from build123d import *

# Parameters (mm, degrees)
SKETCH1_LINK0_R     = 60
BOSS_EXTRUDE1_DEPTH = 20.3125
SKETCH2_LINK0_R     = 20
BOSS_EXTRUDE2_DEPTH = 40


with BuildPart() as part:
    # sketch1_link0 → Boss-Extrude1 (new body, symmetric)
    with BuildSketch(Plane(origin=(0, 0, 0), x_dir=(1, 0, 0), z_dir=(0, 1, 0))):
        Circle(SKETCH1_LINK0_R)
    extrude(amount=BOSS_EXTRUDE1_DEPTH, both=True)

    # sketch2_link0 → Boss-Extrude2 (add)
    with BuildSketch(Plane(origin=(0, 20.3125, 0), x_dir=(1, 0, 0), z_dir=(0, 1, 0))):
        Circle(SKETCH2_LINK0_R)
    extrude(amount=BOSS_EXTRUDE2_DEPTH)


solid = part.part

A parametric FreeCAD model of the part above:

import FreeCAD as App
import Part
import Sketcher
Q = App.Units.Quantity

doc = App.newDocument("Part")
body = doc.addObject("PartDesign::Body", "Body")

sketch1 = doc.addObject("Sketcher::SketchObject", "Sketch")
body.addObject(sketch1)
sketch1.AttachmentSupport = (doc.XZ_Plane, [""])
sketch1.MapMode = "FlatFace"
sketch1.addGeometry(Part.Circle(App.Vector(0, 0, 0), App.Vector(0, 0, 1), 60), False)
sketch1.addConstraint(Sketcher.Constraint("Coincident", 0, 3, -1, 1))
sketch1.addConstraint(Sketcher.Constraint("Diameter", 0, Q("120 mm")))
pad1 = doc.addObject("PartDesign::Pad", "Pad")
body.addObject(pad1)
pad1.Profile = sketch1
pad1.Length = 40.625
pad1.Midplane = True

sketch2 = doc.addObject("Sketcher::SketchObject", "Sketch001")
body.addObject(sketch2)
sketch2.AttachmentSupport = (doc.XZ_Plane, [""])
sketch2.MapMode = "FlatFace"
sketch2.AttachmentOffset = App.Placement(App.Vector(0, 0, -20.3125), App.Rotation())
sketch2.addGeometry(Part.Circle(App.Vector(0, 0, 0), App.Vector(0, 0, 1), 20), False)
sketch2.addConstraint(Sketcher.Constraint("Coincident", 0, 3, -1, 1))
sketch2.addConstraint(Sketcher.Constraint("Diameter", 0, Q("40 mm")))
pad2 = doc.addObject("PartDesign::Pad", "Pad001")
body.addObject(pad2)
pad2.Profile = sketch2
pad2.Length = 40
pad2.Reversed = True

doc.recompute()
